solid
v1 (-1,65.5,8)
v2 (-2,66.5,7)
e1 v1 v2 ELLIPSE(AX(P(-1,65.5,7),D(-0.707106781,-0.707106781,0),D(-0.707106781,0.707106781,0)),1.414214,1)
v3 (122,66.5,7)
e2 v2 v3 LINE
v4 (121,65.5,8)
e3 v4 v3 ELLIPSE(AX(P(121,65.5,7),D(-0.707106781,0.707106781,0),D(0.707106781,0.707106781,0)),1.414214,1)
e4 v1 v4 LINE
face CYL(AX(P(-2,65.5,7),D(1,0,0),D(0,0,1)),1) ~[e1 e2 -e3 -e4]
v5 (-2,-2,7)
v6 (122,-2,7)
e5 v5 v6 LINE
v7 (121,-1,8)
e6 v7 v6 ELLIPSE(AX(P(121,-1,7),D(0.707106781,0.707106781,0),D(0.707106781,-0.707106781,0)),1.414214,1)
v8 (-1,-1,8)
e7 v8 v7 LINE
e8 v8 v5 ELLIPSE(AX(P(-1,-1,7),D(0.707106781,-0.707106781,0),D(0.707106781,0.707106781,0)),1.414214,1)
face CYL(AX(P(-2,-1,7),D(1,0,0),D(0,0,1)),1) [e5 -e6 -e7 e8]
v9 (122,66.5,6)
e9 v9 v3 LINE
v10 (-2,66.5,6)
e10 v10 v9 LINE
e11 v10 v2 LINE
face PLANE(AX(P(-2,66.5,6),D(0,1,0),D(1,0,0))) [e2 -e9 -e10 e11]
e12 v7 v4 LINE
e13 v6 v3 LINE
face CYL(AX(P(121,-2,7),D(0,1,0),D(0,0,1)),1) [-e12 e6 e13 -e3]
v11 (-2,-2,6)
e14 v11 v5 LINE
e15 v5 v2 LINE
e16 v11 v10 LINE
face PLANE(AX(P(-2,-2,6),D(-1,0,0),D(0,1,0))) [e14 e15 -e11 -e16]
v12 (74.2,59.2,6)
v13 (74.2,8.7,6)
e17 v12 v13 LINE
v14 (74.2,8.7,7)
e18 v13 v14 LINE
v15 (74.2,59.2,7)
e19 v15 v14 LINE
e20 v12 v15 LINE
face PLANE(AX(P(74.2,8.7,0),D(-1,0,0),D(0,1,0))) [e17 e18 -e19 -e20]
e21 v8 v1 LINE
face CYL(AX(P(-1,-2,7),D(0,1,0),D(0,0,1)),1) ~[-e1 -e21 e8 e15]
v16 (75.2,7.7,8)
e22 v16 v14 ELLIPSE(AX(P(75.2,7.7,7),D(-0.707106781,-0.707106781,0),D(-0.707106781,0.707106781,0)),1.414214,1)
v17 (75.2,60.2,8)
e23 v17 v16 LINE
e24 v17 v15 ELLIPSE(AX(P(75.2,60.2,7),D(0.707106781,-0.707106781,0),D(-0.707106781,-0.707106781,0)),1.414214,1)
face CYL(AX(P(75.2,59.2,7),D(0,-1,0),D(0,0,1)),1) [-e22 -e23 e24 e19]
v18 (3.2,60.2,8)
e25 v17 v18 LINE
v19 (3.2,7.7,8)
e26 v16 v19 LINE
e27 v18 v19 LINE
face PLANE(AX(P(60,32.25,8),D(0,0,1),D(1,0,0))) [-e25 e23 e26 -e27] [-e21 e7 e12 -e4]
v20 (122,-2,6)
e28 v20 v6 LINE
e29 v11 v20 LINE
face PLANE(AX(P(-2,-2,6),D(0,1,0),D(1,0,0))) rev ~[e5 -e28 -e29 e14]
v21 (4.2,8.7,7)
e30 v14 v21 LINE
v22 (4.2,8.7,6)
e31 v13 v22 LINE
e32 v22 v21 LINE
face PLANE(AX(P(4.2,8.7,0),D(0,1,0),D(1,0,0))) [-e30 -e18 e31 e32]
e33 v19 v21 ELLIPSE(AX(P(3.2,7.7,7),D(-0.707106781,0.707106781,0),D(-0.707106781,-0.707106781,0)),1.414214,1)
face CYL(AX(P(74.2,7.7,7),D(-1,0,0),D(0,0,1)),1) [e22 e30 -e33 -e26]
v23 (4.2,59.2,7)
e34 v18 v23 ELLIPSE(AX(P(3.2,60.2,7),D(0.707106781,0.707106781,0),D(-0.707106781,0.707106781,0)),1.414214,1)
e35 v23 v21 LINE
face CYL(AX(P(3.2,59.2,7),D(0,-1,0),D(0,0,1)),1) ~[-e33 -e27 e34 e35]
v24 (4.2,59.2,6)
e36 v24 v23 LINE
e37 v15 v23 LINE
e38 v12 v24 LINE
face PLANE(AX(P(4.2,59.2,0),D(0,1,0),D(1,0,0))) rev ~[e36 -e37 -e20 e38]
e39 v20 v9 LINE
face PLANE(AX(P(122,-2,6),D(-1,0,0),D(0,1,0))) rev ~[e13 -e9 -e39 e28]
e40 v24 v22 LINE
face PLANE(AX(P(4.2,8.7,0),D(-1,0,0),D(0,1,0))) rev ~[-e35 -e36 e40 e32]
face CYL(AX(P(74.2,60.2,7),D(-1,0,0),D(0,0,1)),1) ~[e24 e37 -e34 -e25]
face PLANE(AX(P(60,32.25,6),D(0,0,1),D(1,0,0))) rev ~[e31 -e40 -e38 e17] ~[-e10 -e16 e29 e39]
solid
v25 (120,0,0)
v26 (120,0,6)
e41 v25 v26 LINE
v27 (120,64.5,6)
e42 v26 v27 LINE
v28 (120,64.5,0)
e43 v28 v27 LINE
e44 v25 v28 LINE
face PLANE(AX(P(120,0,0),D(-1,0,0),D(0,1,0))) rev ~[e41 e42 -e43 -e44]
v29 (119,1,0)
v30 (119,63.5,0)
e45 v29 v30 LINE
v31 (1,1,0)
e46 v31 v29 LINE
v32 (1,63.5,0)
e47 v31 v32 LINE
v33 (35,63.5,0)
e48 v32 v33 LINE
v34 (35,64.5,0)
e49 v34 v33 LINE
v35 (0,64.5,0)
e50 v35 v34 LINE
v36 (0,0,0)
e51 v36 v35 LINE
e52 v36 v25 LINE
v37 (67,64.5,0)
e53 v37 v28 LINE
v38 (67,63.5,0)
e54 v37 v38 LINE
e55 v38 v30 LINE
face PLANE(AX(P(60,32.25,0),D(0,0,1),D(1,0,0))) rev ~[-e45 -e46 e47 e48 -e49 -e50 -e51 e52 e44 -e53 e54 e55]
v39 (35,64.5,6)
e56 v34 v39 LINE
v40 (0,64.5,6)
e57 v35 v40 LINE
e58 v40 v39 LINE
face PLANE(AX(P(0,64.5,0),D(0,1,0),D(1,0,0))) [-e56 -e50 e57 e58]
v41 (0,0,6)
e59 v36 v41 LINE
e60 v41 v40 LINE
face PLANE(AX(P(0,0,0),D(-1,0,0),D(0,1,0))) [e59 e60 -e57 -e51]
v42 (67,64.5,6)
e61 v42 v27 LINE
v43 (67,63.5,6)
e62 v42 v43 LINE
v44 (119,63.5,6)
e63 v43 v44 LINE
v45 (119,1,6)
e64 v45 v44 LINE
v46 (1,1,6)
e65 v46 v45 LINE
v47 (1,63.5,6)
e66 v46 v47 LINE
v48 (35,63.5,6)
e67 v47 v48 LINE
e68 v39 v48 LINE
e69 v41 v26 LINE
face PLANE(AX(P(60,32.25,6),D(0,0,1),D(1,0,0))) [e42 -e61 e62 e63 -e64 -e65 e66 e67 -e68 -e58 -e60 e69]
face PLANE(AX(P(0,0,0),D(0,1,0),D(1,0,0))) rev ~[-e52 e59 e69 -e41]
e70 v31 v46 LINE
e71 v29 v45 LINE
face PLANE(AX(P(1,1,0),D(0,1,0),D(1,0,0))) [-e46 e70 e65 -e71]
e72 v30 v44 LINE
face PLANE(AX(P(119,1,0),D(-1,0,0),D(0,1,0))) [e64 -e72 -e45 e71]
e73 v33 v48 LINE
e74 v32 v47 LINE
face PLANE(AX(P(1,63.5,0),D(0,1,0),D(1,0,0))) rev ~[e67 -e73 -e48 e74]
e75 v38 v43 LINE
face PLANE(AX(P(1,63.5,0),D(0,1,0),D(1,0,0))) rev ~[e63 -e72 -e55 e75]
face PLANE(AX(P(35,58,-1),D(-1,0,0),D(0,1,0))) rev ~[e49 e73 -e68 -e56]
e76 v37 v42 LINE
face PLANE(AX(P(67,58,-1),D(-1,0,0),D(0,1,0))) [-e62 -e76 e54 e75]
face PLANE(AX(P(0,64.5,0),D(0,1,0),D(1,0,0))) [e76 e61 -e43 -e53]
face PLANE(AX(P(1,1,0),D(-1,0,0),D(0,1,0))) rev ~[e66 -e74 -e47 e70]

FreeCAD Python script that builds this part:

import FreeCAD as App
import Part
import Sketcher
Q = App.Units.Quantity


def edges_at(feature, points):
    """Names of the edges that pass closest to the given points."""
    edges = feature.Shape.Edges
    near = lambda p: min(range(len(edges)), key=lambda i: edges[i].distToShape(Part.Vertex(*p))[0])
    return sorted({f"Edge{near(p) + 1}" for p in points})

doc = App.newDocument("Part")
params = doc.addObject("Spreadsheet::Sheet", "Params")
for row, (alias, value) in enumerate([
    ("sketch1_width", "32 mm"),
    ("sketch1_height", "10 mm"),
    ("pad1_length", "10 mm"),
    ("sketch2_width", "118 mm"),
    ("sketch2_height", "62.5 mm"),
    ("pad2_length", "6 mm"),
    ("sketch3_width", "120 mm"),
    ("sketch3_height", "64.5 mm"),
    ("pad3_length", "6 mm"),
    ("sketch4_width", "70 mm"),
    ("sketch4_height", "50.5 mm"),
    ("pad4_length", "10 mm"),
    ("sketch5_width", "124 mm"),
    ("sketch5_height", "68.5 mm"),
    ("pad5_length", "2 mm"),
    ("fillet_radius", "1 mm"),
    ("fillet2_radius", "1 mm"),
], start=1):
    params.set(f"A{row}", alias)
    params.set(f"B{row}", "=" + value)
    params.setAlias(f"B{row}", alias)

body = doc.addObject("PartDesign::Body", "Body")

sketch1 = body.newObject("Sketcher::SketchObject", "Sketch")
sketch1.AttachmentSupport = (doc.getObject("XY_Plane"), [""])
sketch1.MapMode = "FlatFace"
sketch1.AttachmentOffset = App.Placement(App.Vector(0, 0, -1), App.Rotation())
sketch1.addGeometry([
    Part.LineSegment(App.Vector(35, 68, 0), App.Vector(35, 58, 0)),
    Part.LineSegment(App.Vector(35, 58, 0), App.Vector(67, 58, 0)),
    Part.LineSegment(App.Vector(67, 58, 0), App.Vector(67, 68, 0)),
    Part.LineSegment(App.Vector(67, 68, 0), App.Vector(35, 68, 0)),
], False)
sketch1.addConstraint([
    Sketcher.Constraint("Coincident", 0, 2, 1, 1),
    Sketcher.Constraint("Coincident", 1, 2, 2, 1),
    Sketcher.Constraint("Coincident", 2, 2, 3, 1),
    Sketcher.Constraint("Coincident", 3, 2, 0, 1),
    Sketcher.Constraint("Vertical", 0),
    Sketcher.Constraint("Horizontal", 1),
    Sketcher.Constraint("Vertical", 2),
    Sketcher.Constraint("Horizontal", 3),
    Sketcher.Constraint("DistanceX", 1, 1, 1, 2, Q("32 mm")),
    Sketcher.Constraint("DistanceY", 0, 2, 0, 1, Q("10 mm")),
    Sketcher.Constraint("DistanceX", -1, 1, 0, 2, Q("35 mm")),
    Sketcher.Constraint("DistanceY", -1, 1, 0, 2, Q("58 mm")),
])
sketch1.setExpression("Constraints[8]", "Params.sketch1_width")
sketch1.setExpression("Constraints[9]", "Params.sketch1_height")
pad1 = body.newObject("PartDesign::Pad", "Pad")
pad1.Profile = sketch1
pad1.setExpression("Length", "Params.pad1_length")
body2 = doc.addObject("PartDesign::Body", "Body001")

sketch2 = body2.newObject("Sketcher::SketchObject", "Sketch001")
sketch2.AttachmentSupport = (doc.getObject("XY_Plane001"), [""])
sketch2.MapMode = "FlatFace"
sketch2.addGeometry([
    Part.LineSegment(App.Vector(1, 64, 0), App.Vector(1, 1, 0)),
    Part.LineSegment(App.Vector(1, 1, 0), App.Vector(119, 1, 0)),
    Part.LineSegment(App.Vector(119, 1, 0), App.Vector(119, 64, 0)),
    Part.LineSegment(App.Vector(119, 64, 0), App.Vector(1, 64, 0)),
], False)
sketch2.addConstraint([
    Sketcher.Constraint("Coincident", 0, 2, 1, 1),
    Sketcher.Constraint("Coincident", 1, 2, 2, 1),
    Sketcher.Constraint("Coincident", 2, 2, 3, 1),
    Sketcher.Constraint("Coincident", 3, 2, 0, 1),
    Sketcher.Constraint("Vertical", 0),
    Sketcher.Constraint("Horizontal", 1),
    Sketcher.Constraint("Vertical", 2),
    Sketcher.Constraint("Horizontal", 3),
    Sketcher.Constraint("DistanceX", 1, 1, 1, 2, Q("118 mm")),
    Sketcher.Constraint("DistanceY", 0, 2, 0, 1, Q("62.5 mm")),
    Sketcher.Constraint("DistanceX", -1, 1, 0, 2, Q("1 mm")),
    Sketcher.Constraint("DistanceY", -1, 1, 0, 2, Q("1 mm")),
])
sketch2.setExpression("Constraints[8]", "Params.sketch2_width")
sketch2.setExpression("Constraints[9]", "Params.sketch2_height")
pad2 = body2.newObject("PartDesign::Pad", "Pad001")
pad2.Profile = sketch2
pad2.setExpression("Length", "Params.pad2_length")
body3 = doc.addObject("PartDesign::Body", "Body002")

sketch3 = body3.newObject("Sketcher::SketchObject", "Sketch002")
sketch3.AttachmentSupport = (doc.getObject("XY_Plane002"), [""])
sketch3.MapMode = "FlatFace"
sketch3.addGeometry([
    Part.LineSegment(App.Vector(0, 64, 0), App.Vector(0, 0, 0)),
    Part.LineSegment(App.Vector(0, 0, 0), App.Vector(120, 0, 0)),
    Part.LineSegment(App.Vector(120, 0, 0), App.Vector(120, 64, 0)),
    Part.LineSegment(App.Vector(120, 64, 0), App.Vector(0, 64, 0)),
], False)
sketch3.addConstraint([
    Sketcher.Constraint("Coincident", 0, 2, 1, 1),
    Sketcher.Constraint("Coincident", 1, 2, 2, 1),
    Sketcher.Constraint("Coincident", 2, 2, 3, 1),
    Sketcher.Constraint("Coincident", 3, 2, 0, 1),
    Sketcher.Constraint("Vertical", 0),
    Sketcher.Constraint("Horizontal", 1),
    Sketcher.Constraint("Vertical", 2),
    Sketcher.Constraint("Horizontal", 3),
    Sketcher.Constraint("Coincident", 0, 2, -1, 1),
    Sketcher.Constraint("DistanceX", 1, 1, 1, 2, Q("120 mm")),
    Sketcher.Constraint("DistanceY", 0, 2, 0, 1, Q("64.5 mm")),
])
sketch3.setExpression("Constraints[9]", "Params.sketch3_width")
sketch3.setExpression("Constraints[10]", "Params.sketch3_height")
pad3 = body3.newObject("PartDesign::Pad", "Pad002")
pad3.Profile = sketch3
pad3.setExpression("Length", "Params.pad3_length")
doc.recompute()

boolean = body3.newObject("PartDesign::Boolean", "Boolean")
boolean.Type = "Cut"
boolean.addObjects([body2])
doc.recompute()

boolean2 = body3.newObject("PartDesign::Boolean", "Boolean001")
boolean2.Type = "Cut"
boolean2.addObjects([body])
body4 = doc.addObject("PartDesign::Body", "Body003")
doc.recompute()

body3.Placement = App.Placement(App.Vector(0, 0, 0.1), App.Rotation(App.Vector(0, 0, 1), 0))
boolean3 = body4.newObject("PartDesign::Boolean", "Boolean002")
boolean3.Type = "Fuse"
boolean3.addObjects([body3])
body5 = doc.addObject("PartDesign::Body", "Body004")

sketch4 = body5.newObject("Sketcher::SketchObject", "Sketch003")
sketch4.AttachmentSupport = (doc.getObject("XY_Plane004"), [""])
sketch4.MapMode = "FlatFace"
sketch4.addGeometry([
    Part.LineSegment(App.Vector(4, 59, 0), App.Vector(4, 9, 0)),
    Part.LineSegment(App.Vector(4, 9, 0), App.Vector(74, 9, 0)),
    Part.LineSegment(App.Vector(74, 9, 0), App.Vector(74, 59, 0)),
    Part.LineSegment(App.Vector(74, 59, 0), App.Vector(4, 59, 0)),
], False)
sketch4.addConstraint([
    Sketcher.Constraint("Coincident", 0, 2, 1, 1),
    Sketcher.Constraint("Coincident", 1, 2, 2, 1),
    Sketcher.Constraint("Coincident", 2, 2, 3, 1),
    Sketcher.Constraint("Coincident", 3, 2, 0, 1),
    Sketcher.Constraint("Vertical", 0),
    Sketcher.Constraint("Horizontal", 1),
    Sketcher.Constraint("Vertical", 2),
    Sketcher.Constraint("Horizontal", 3),
    Sketcher.Constraint("DistanceX", 1, 1, 1, 2, Q("70 mm")),
    Sketcher.Constraint("DistanceY", 0, 2, 0, 1, Q("50.5 mm")),
    Sketcher.Constraint("DistanceX", -1, 1, 0, 2, Q("4.2 mm")),
    Sketcher.Constraint("DistanceY", -1, 1, 0, 2, Q("8.7 mm")),
])
sketch4.setExpression("Constraints[8]", "Params.sketch4_width")
sketch4.setExpression("Constraints[9]", "Params.sketch4_height")
pad4 = body5.newObject("PartDesign::Pad", "Pad003")
pad4.Profile = sketch4
pad4.setExpression("Length", "Params.pad4_length")
body6 = doc.addObject("PartDesign::Body", "Body005")

sketch5 = body6.newObject("Sketcher::SketchObject", "Sketch004")
sketch5.AttachmentSupport = (doc.getObject("XY_Plane005"), [""])
sketch5.MapMode = "FlatFace"
sketch5.AttachmentOffset = App.Placement(App.Vector(0, 0, 6), App.Rotation())
sketch5.addGeometry([
    Part.LineSegment(App.Vector(-2, 66, 0), App.Vector(-2, -2, 0)),
    Part.LineSegment(App.Vector(-2, -2, 0), App.Vector(122, -2, 0)),
    Part.LineSegment(App.Vector(122, -2, 0), App.Vector(122, 66, 0)),
    Part.LineSegment(App.Vector(122, 66, 0), App.Vector(-2, 66, 0)),
], False)
sketch5.addConstraint([
    Sketcher.Constraint("Coincident", 0, 2, 1, 1),
    Sketcher.Constraint("Coincident", 1, 2, 2, 1),
    Sketcher.Constraint("Coincident", 2, 2, 3, 1),
    Sketcher.Constraint("Coincident", 3, 2, 0, 1),
    Sketcher.Constraint("Vertical", 0),
    Sketcher.Constraint("Horizontal", 1),
    Sketcher.Constraint("Vertical", 2),
    Sketcher.Constraint("Horizontal", 3),
    Sketcher.Constraint("DistanceX", 1, 1, 1, 2, Q("124 mm")),
    Sketcher.Constraint("DistanceY", 0, 2, 0, 1, Q("68.5 mm")),
    Sketcher.Constraint("DistanceX", 0, 2, -1, 1, Q("2 mm")),
    Sketcher.Constraint("DistanceY", 0, 2, -1, 1, Q("2 mm")),
])
sketch5.setExpression("Constraints[8]", "Params.sketch5_width")
sketch5.setExpression("Constraints[9]", "Params.sketch5_height")
pad5 = body6.newObject("PartDesign::Pad", "Pad004")
pad5.Profile = sketch5
pad5.setExpression("Length", "Params.pad5_length")
doc.recompute()

boolean4 = body6.newObject("PartDesign::Boolean", "Boolean003")
boolean4.Type = "Cut"
boolean4.addObjects([body5])
doc.recompute()

fillet = body6.newObject("PartDesign::Fillet", "Fillet")
fillet.Base = (boolean4, edges_at(boolean4, [
    (39.2, 8.7, 8),
    (74.2, 33.95, 8),
    (39.2, 59.2, 8),
    (4.2, 33.95, 8),
]))
fillet.setExpression("Radius", "Params.fillet_radius")
doc.recompute()

fillet2 = body6.newObject("PartDesign::Fillet", "Fillet001")
fillet2.Base = (fillet, edges_at(fillet, [
    (-2, 32.25, 8),
    (60, 66.5, 8),
    (60, -2, 8),
    (122, 32.25, 8),
]))
fillet2.setExpression("Radius", "Params.fillet2_radius")

doc.recompute()
